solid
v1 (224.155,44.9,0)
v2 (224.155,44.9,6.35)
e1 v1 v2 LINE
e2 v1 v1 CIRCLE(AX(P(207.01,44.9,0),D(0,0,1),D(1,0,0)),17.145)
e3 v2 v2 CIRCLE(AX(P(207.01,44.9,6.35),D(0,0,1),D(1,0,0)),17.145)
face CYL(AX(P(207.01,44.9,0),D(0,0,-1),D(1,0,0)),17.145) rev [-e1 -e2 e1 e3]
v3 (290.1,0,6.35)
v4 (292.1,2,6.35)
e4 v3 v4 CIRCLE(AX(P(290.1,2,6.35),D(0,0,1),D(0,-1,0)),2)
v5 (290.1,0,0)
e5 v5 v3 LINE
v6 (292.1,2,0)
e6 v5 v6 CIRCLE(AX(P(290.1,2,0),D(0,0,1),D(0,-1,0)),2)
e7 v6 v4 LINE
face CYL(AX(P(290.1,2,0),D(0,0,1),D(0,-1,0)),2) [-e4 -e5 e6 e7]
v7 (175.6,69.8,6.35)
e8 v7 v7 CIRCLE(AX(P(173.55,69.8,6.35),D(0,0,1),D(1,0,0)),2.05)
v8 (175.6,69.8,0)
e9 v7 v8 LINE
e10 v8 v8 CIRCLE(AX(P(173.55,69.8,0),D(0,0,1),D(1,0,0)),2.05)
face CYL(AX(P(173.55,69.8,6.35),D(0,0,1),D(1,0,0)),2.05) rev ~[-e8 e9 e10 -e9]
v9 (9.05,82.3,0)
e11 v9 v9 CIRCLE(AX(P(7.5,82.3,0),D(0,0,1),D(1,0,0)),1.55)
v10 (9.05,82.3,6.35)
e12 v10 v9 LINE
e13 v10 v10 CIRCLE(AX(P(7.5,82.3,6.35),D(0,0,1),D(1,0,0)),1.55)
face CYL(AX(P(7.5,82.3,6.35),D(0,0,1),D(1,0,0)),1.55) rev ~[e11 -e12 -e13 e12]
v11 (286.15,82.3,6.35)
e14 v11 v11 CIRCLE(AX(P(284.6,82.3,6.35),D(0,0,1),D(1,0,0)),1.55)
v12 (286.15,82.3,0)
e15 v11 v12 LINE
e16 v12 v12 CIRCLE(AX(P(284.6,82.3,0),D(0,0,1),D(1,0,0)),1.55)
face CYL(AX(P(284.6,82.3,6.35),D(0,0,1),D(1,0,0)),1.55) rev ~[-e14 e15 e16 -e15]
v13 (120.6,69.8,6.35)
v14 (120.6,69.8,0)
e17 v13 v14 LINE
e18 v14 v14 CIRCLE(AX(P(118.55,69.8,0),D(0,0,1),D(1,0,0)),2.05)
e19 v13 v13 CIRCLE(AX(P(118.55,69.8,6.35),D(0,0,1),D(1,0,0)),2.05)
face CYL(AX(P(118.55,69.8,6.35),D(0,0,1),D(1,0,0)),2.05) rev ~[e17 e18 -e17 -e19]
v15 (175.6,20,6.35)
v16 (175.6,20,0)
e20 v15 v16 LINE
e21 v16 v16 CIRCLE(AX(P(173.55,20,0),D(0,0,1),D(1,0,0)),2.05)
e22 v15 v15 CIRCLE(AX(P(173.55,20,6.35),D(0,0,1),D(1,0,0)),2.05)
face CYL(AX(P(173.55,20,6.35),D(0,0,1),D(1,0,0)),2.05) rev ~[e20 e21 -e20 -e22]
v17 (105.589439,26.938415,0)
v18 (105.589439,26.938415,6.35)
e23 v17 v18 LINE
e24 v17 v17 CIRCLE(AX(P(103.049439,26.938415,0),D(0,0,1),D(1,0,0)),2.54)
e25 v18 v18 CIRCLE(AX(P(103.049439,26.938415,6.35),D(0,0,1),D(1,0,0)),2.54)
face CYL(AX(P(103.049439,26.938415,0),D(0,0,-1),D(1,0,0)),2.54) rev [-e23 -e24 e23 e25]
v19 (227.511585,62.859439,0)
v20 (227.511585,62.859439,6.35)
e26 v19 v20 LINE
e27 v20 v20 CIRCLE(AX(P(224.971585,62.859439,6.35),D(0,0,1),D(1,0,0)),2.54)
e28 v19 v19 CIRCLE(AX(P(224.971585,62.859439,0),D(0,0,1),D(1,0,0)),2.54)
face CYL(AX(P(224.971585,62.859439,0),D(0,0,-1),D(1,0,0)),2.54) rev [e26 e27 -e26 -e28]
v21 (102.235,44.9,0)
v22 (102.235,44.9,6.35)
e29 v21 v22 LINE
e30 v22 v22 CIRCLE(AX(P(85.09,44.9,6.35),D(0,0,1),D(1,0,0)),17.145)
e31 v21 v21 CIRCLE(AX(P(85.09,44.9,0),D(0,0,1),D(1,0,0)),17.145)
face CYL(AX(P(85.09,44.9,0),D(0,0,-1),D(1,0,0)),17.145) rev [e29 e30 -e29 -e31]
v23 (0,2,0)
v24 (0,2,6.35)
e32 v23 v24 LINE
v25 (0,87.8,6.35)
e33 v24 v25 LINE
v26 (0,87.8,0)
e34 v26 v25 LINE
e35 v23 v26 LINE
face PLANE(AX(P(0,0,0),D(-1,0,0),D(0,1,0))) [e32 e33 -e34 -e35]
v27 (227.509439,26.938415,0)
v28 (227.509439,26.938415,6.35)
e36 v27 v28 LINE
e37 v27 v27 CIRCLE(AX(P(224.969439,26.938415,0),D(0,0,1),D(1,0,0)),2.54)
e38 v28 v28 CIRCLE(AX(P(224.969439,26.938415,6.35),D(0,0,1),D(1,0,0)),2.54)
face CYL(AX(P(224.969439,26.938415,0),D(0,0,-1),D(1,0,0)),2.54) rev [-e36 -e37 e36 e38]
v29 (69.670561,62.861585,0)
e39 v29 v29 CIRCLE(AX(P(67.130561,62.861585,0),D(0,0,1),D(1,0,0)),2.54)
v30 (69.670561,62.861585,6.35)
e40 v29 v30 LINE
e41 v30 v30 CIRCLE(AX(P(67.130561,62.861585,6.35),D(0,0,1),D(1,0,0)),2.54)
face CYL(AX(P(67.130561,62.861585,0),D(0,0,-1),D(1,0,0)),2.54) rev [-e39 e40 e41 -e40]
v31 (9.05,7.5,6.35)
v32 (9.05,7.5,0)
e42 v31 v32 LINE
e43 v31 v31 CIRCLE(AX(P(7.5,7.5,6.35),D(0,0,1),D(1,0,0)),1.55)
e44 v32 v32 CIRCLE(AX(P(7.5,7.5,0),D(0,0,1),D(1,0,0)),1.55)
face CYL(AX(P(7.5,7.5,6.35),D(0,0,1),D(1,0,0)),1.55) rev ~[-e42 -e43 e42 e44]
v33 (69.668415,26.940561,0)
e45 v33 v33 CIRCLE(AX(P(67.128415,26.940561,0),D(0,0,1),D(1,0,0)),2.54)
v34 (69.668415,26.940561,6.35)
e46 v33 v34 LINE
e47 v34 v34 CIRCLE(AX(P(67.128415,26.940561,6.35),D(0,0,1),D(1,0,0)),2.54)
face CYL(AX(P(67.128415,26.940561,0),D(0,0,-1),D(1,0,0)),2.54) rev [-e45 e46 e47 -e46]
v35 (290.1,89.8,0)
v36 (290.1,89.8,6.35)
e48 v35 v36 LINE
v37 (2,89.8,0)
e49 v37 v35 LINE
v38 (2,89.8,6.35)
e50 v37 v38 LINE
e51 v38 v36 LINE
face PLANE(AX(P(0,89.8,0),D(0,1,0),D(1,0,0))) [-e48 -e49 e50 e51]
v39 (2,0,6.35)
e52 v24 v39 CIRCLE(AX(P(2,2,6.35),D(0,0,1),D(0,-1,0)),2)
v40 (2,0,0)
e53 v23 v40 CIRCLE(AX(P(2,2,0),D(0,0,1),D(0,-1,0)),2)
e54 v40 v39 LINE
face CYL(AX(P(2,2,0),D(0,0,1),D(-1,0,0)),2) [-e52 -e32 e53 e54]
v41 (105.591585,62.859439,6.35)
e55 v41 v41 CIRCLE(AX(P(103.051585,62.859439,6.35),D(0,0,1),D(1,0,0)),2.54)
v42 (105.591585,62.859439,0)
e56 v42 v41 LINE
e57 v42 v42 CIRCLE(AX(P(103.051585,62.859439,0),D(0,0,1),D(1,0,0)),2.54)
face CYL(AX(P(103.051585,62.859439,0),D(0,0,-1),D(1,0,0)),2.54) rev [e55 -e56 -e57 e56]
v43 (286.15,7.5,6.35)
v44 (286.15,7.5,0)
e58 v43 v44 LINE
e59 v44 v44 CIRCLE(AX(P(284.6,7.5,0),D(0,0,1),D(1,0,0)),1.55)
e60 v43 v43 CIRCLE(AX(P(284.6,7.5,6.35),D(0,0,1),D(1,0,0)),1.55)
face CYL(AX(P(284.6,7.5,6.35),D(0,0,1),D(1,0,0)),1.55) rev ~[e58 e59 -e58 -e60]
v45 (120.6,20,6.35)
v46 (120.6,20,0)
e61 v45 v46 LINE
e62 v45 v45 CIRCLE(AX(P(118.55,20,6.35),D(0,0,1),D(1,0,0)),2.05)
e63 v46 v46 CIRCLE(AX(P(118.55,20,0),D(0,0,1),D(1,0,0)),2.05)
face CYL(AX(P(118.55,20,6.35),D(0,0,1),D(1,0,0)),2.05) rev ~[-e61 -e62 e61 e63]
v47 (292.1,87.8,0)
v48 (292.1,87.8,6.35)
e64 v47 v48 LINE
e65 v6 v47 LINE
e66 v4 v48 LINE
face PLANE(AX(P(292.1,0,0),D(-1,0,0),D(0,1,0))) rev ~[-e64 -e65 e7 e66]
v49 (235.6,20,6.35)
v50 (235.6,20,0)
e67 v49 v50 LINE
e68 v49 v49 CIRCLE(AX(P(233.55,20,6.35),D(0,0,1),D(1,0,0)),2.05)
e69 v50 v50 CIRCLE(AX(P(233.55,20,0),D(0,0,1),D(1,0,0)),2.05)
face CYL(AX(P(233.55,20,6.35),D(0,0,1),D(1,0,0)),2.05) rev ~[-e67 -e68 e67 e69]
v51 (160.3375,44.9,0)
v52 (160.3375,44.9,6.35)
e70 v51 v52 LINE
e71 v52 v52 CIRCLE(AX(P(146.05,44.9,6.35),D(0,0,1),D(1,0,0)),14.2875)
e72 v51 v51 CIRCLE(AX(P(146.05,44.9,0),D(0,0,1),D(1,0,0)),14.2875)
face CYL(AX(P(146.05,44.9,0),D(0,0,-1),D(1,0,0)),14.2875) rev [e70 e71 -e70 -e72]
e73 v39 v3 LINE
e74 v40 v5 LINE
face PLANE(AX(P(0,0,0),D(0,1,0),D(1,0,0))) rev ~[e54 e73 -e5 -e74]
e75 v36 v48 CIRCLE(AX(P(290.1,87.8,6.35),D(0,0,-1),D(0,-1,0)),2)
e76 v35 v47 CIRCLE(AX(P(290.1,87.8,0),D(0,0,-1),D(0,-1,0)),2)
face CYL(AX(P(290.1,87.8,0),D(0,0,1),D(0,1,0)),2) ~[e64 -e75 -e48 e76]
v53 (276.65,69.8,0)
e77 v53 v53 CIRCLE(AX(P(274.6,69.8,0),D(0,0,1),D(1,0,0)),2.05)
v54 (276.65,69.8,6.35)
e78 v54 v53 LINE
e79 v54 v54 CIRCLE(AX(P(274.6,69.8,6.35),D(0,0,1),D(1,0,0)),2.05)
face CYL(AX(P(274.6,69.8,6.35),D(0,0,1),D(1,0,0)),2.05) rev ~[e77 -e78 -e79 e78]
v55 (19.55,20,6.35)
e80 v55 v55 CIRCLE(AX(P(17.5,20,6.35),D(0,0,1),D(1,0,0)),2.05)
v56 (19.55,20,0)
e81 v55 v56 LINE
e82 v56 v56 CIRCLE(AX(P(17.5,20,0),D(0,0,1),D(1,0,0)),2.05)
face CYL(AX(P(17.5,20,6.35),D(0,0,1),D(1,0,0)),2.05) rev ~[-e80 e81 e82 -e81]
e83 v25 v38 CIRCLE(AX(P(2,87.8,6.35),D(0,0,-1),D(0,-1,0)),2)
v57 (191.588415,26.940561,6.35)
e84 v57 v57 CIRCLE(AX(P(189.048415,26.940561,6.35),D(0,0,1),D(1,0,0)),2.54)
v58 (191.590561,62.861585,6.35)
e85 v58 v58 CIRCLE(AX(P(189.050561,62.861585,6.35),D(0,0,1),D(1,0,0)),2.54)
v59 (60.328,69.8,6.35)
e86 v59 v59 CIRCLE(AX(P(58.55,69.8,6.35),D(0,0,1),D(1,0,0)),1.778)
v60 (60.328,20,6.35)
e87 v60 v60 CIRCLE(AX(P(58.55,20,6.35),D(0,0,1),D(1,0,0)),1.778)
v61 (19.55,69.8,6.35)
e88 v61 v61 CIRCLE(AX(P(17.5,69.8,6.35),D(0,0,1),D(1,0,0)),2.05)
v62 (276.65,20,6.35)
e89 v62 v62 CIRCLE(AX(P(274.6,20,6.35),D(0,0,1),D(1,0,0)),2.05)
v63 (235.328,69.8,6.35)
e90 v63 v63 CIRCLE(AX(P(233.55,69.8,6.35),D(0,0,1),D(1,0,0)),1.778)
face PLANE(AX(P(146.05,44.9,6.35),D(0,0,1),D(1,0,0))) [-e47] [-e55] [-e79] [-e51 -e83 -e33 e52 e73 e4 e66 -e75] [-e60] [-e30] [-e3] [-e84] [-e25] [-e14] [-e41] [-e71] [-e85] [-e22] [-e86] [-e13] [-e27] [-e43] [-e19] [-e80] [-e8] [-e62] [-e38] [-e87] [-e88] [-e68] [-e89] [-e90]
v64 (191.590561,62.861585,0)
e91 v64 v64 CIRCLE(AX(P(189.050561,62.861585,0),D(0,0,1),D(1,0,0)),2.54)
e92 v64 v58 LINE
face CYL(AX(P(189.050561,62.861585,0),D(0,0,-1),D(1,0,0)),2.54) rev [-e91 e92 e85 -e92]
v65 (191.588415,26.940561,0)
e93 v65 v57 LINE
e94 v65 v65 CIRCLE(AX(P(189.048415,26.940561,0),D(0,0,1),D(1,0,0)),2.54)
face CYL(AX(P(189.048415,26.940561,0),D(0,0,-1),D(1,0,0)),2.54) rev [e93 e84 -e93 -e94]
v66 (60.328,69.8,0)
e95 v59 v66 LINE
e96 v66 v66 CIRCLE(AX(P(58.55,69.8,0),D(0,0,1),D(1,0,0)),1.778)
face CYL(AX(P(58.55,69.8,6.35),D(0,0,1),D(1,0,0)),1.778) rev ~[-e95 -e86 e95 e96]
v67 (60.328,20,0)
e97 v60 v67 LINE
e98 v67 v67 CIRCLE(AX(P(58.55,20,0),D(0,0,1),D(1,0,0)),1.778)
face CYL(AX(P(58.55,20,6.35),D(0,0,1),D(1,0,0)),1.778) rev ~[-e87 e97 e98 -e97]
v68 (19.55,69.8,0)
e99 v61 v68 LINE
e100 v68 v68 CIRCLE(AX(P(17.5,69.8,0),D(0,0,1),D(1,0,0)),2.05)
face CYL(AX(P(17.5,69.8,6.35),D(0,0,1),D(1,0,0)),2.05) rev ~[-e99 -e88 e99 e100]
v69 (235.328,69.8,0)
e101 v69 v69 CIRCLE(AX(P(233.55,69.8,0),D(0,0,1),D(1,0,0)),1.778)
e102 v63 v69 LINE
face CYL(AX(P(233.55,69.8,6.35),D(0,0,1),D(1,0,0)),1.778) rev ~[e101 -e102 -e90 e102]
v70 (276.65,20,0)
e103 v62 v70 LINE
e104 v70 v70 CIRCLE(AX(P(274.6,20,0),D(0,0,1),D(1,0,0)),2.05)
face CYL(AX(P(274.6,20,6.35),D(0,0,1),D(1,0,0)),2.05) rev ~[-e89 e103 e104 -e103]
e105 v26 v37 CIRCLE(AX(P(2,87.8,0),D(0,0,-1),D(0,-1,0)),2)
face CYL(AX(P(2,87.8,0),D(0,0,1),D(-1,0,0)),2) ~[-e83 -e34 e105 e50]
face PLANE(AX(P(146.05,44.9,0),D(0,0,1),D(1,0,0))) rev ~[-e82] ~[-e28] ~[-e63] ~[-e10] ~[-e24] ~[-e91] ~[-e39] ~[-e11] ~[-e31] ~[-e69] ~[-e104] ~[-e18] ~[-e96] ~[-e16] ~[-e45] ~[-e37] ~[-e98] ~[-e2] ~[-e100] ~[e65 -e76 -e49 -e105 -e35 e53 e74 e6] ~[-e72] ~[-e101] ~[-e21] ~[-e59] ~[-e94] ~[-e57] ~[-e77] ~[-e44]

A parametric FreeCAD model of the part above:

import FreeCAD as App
import Part
import Sketcher

V = App.Vector
Q = App.Units.Quantity


def edges_at(feature, points):
    """Names of the edges that pass closest to the given points."""
    edges = feature.Shape.Edges
    near = lambda p: min(range(len(edges)), key=lambda i: edges[i].distToShape(Part.Vertex(*p))[0])
    return sorted({f"Edge{near(p) + 1}" for p in points})


def add_polygon(sketch, points):
    """Adds a closed chain of lines whose ends are joined by coincident constraints."""
    first, n = sketch.GeometryCount, len(points)
    for a, b in zip(points, points[1:] + points[:1]):
        sketch.addGeometry(Part.LineSegment(App.Vector(*a, 0), App.Vector(*b, 0)), False)
    for i in range(n):
        sketch.addConstraint(Sketcher.Constraint("Coincident", first + i, 2, first + (i + 1) % n, 1))

doc = App.newDocument("Part")
body = doc.addObject("PartDesign::Body", "Body")

# Sketch on XY plane
sketch1 = body.newObject("Sketcher::SketchObject", "Sketch")
sketch1.AttachmentSupport = (doc.getObject("XY_Plane"), [""])
sketch1.MapMode = "FlatFace"
add_polygon(sketch1, [(0, 89.8), (0, 0), (292.1, 0), (292.1, 89.8)])  # lines 0-3
sketch1.addGeometry(Part.Circle(V(67.128415, 26.940561, 0), V(0, 0, 1), 2.54), False)  # 4
sketch1.addGeometry(Part.Circle(V(103.049439, 26.938415, 0), V(0, 0, 1), 2.54), False)  # 5
sketch1.addGeometry(Part.Circle(V(85.09, 44.9, 0), V(0, 0, 1), 17.145), False)  # 6
sketch1.addGeometry(Part.Circle(V(189.048415, 26.940561, 0), V(0, 0, 1), 2.54), False)  # 7
sketch1.addGeometry(Part.Circle(V(224.969439, 26.938415, 0), V(0, 0, 1), 2.54), False)  # 8
sketch1.addGeometry(Part.Circle(V(146.05, 44.9, 0), V(0, 0, 1), 14.2875), False)  # 9
sketch1.addGeometry(Part.Circle(V(207.01, 44.9, 0), V(0, 0, 1), 17.145), False)  # 10
sketch1.addGeometry(Part.Circle(V(67.130561, 62.861585, 0), V(0, 0, 1), 2.54), False)  # 11
sketch1.addGeometry(Part.Circle(V(103.051585, 62.859439, 0), V(0, 0, 1), 2.54), False)  # 12
sketch1.addGeometry(Part.Circle(V(189.050561, 62.861585, 0), V(0, 0, 1), 2.54), False)  # 13
sketch1.addGeometry(Part.Circle(V(224.971585, 62.859439, 0), V(0, 0, 1), 2.54), False)  # 14
sketch1.addConstraint([
    Sketcher.Constraint("Vertical", 0),
    Sketcher.Constraint("Horizontal", 1),
    Sketcher.Constraint("Vertical", 2),
    Sketcher.Constraint("Horizontal", 3),
    Sketcher.Constraint("Coincident", 0, 2, -1, 1),
    Sketcher.Constraint("Equal", 4, 5),
    Sketcher.Constraint("Equal", 5, 7),
    Sketcher.Constraint("Equal", 7, 8),
    Sketcher.Constraint("Equal", 6, 10),
    Sketcher.Constraint("Equal", 8, 11),
    Sketcher.Constraint("Equal", 11, 12),
    Sketcher.Constraint("Equal", 12, 13),
    Sketcher.Constraint("Equal", 13, 14),
    Sketcher.Constraint("Horizontal", 4, 3, 7, 3),
    Sketcher.Constraint("Horizontal", 5, 3, 8, 3),
    Sketcher.Constraint("Horizontal", 6, 3, 9, 3),
    Sketcher.Constraint("Horizontal", 9, 3, 10, 3),
    Sketcher.Constraint("Horizontal", 11, 3, 13, 3),
    Sketcher.Constraint("Horizontal", 12, 3, 14, 3),
    Sketcher.Constraint("Diameter", 4, Q("0.2 in")),
    Sketcher.Constraint("Diameter", 6, Q("1.35 in")),
    Sketcher.Constraint("Diameter", 9, Q("1.125 in")),
    Sketcher.Constraint("DistanceX", 1, 1, 1, 2, Q("11.5 in")),
    Sketcher.Constraint("DistanceX", 4, 3, 7, 3, Q("4.8 in")),
    Sketcher.Constraint("DistanceX", 5, 3, 8, 3, Q("4.8 in")),
    Sketcher.Constraint("DistanceX", 6, 3, 9, 3, Q("2.4 in")),
    Sketcher.Constraint("DistanceX", 9, 3, 10, 3, Q("2.4 in")),
    Sketcher.Constraint("DistanceX", -1, 1, 6, 3, Q("3.35 in")),
    Sketcher.Constraint("DistanceY", 0, 2, 0, 1, Q("89.8 mm")),
    Sketcher.Constraint("DistanceY", -1, 1, 6, 3, Q("44.9 mm")),
    Sketcher.Constraint("DistanceY", -1, 1, 4, 3, Q("26.940561 mm")),
    Sketcher.Constraint("DistanceX", -1, 1, 5, 3, Q("103.049439 mm")),
    Sketcher.Constraint("DistanceX", -1, 1, 11, 3, Q("67.130561 mm")),
    Sketcher.Constraint("DistanceY", -1, 1, 12, 3, Q("62.859439 mm")),
    Sketcher.Constraint("DistanceX", -1, 1, 13, 3, Q("189.050561 mm")),
    Sketcher.Constraint("DistanceY", 5, 3, 11, 3, Q("35.923171 mm")),
    Sketcher.Constraint("DistanceX", 4, 3, 12, 3, Q("35.923171 mm")),
    Sketcher.Constraint("DistanceX", 7, 3, 14, 3, Q("35.923171 mm")),
    Sketcher.Constraint("DistanceX", -1, 1, 4, 3, Q("67.128415 mm")),
    Sketcher.Constraint("DistanceY", -1, 1, 5, 3, Q("26.938415 mm")),
])
pad1 = body.newObject("PartDesign::Pad", "Pad")
pad1.Profile = sketch1
pad1.Length = Q("0.25 in")

# Sketch on XY plane
sketch2 = body.newObject("Sketcher::SketchObject", "Sketch001")
sketch2.AttachmentSupport = (doc.getObject("XY_Plane"), [""])
sketch2.MapMode = "FlatFace"
sketch2.AttachmentOffset = App.Placement(V(0, 0, 0.25 * 25.4), App.Rotation())
sketch2.addGeometry([
    Part.Circle(V(118.55, 20, 0), V(0, 0, 1), 2.05),
    Part.Circle(V(118.55, 69.8, 0), V(0, 0, 1), 2.05),
    Part.Circle(V(173.55, 20, 0), V(0, 0, 1), 2.05),
    Part.Circle(V(173.55, 69.8, 0), V(0, 0, 1), 2.05),
], False)
sketch2.addConstraint([
    Sketcher.Constraint("Equal", 0, 1),
    Sketcher.Constraint("Equal", 1, 2),
    Sketcher.Constraint("Equal", 2, 3),
    Sketcher.Constraint("Horizontal", 0, 3, 2, 3),
    Sketcher.Constraint("Horizontal", 1, 3, 3, 3),
    Sketcher.Constraint("Vertical", 0, 3, 1, 3),
    Sketcher.Constraint("Vertical", 2, 3, 3, 3),
    Sketcher.Constraint("Diameter", 0, Q("4.1 mm")),
    Sketcher.Constraint("DistanceX", -1, 1, 0, 3, Q("118.55 mm")),
    Sketcher.Constraint("DistanceY", -1, 1, 0, 3, Q("20 mm")),
    Sketcher.Constraint("DistanceY", -1, 1, 1, 3, Q("69.8 mm")),
    Sketcher.Constraint("DistanceX", -1, 1, 2, 3, Q("173.55 mm")),
])
pocket1 = body.newObject("PartDesign::Pocket", "Pocket")
pocket1.Profile = sketch2
pocket1.Length = 10

# Sketch on XY plane
sketch3 = body.newObject("Sketcher::SketchObject", "Sketch002")
sketch3.AttachmentSupport = (doc.getObject("XY_Plane"), [""])
sketch3.MapMode = "FlatFace"
sketch3.AttachmentOffset = App.Placement(V(0, 0, 0.25 * 25.4), App.Rotation())
sketch3.addGeometry([
    Part.Circle(V(284.6, 7.5, 0), V(0, 0, 1), 1.55),  # 0
    Part.Circle(V(7.5, 7.5, 0), V(0, 0, 1), 1.55),  # 1
    Part.Circle(V(7.5, 82.3, 0), V(0, 0, 1), 1.55),  # 2
    Part.Circle(V(284.6, 82.3, 0), V(0, 0, 1), 1.55),  # 3
    Part.Circle(V(274.6, 20, 0), V(0, 0, 1), 2.05),  # 4
    Part.Circle(V(17.5, 20, 0), V(0, 0, 1), 2.05),  # 5
    Part.Circle(V(17.5, 69.8, 0), V(0, 0, 1), 2.05),  # 6
    Part.Circle(V(274.6, 69.8, 0), V(0, 0, 1), 2.05),  # 7
], False)
sketch3.addConstraint([
    Sketcher.Constraint("Equal", 0, 1),
    Sketcher.Constraint("Equal", 1, 2),
    Sketcher.Constraint("Equal", 2, 3),
    Sketcher.Constraint("Equal", 4, 5),
    Sketcher.Constraint("Equal", 5, 6),
    Sketcher.Constraint("Equal", 6, 7),
    Sketcher.Constraint("Horizontal", 0, 3, 1, 3),
    Sketcher.Constraint("Horizontal", 2, 3, 3, 3),
    Sketcher.Constraint("Horizontal", 4, 3, 5, 3),
    Sketcher.Constraint("Horizontal", 6, 3, 7, 3),
    Sketcher.Constraint("Vertical", 1, 3, 2, 3),
    Sketcher.Constraint("Vertical", 0, 3, 3, 3),
    Sketcher.Constraint("Vertical", 5, 3, 6, 3),
    Sketcher.Constraint("Vertical", 4, 3, 7, 3),
    Sketcher.Constraint("Diameter", 0, Q("3.1 mm")),
    Sketcher.Constraint("Diameter", 4, Q("4.1 mm")),
    Sketcher.Constraint("DistanceX", -1, 1, 0, 3, Q("284.6 mm")),
    Sketcher.Constraint("DistanceY", -1, 1, 0, 3, Q("7.5 mm")),
    Sketcher.Constraint("DistanceX", -1, 1, 1, 3, Q("7.5 mm")),
    Sketcher.Constraint("DistanceY", -1, 1, 2, 3, Q("82.3 mm")),
    Sketcher.Constraint("DistanceX", -1, 1, 4, 3, Q("274.6 mm")),
    Sketcher.Constraint("DistanceY", -1, 1, 4, 3, Q("20 mm")),
    Sketcher.Constraint("DistanceX", -1, 1, 5, 3, Q("17.5 mm")),
    Sketcher.Constraint("DistanceY", -1, 1, 6, 3, Q("69.8 mm")),
])
pocket2 = body.newObject("PartDesign::Pocket", "Pocket001")
pocket2.Profile = sketch3
pocket2.Length = 10
doc.recompute()

fillet = body.newObject("PartDesign::Fillet", "Fillet")
fillet.Base = (pocket2, edges_at(pocket2, [
    (0, 89.8, 3.175),
    (292.1, 89.8, 3.175),
    (292.1, 0, 3.175),
    (0, 0, 3.175),
]))
fillet.Radius = 2

# Sketch on XY plane
sketch4 = body.newObject("Sketcher::SketchObject", "Sketch003")
sketch4.AttachmentSupport = (doc.getObject("XY_Plane"), [""])
sketch4.MapMode = "FlatFace"
sketch4.AttachmentOffset = App.Placement(V(0, 0, 0.25 * 25.4), App.Rotation())
sketch4.addGeometry([
    Part.Circle(V(233.55, 20, 0), V(0, 0, 1), 2.05),
    Part.Circle(V(233.55, 69.8, 0), V(0, 0, 1), 1.778),
    Part.Circle(V(58.55, 69.8, 0), V(0, 0, 1), 1.778),
    Part.Circle(V(58.55, 20, 0), V(0, 0, 1), 1.778),
], False)
sketch4.addConstraint([
    Sketcher.Constraint("Equal", 1, 2),
    Sketcher.Constraint("Equal", 2, 3),
    Sketcher.Constraint("Horizontal", 1, 3, 2, 3),
    Sketcher.Constraint("Horizontal", 0, 3, 3, 3),
    Sketcher.Constraint("Vertical", 0, 3, 1, 3),
    Sketcher.Constraint("Vertical", 2, 3, 3, 3),
    Sketcher.Constraint("Diameter", 1, Q("0.14 in")),
    Sketcher.Constraint("Diameter", 0, Q("4.1 mm")),
    Sketcher.Constraint("DistanceX", -1, 1, 0, 3, Q("233.55 mm")),
    Sketcher.Constraint("DistanceY", -1, 1, 0, 3, Q("20 mm")),
    Sketcher.Constraint("DistanceY", -1, 1, 1, 3, Q("69.8 mm")),
    Sketcher.Constraint("DistanceX", -1, 1, 2, 3, Q("58.55 mm")),
])
pocket3 = body.newObject("PartDesign::Pocket", "Pocket002")
pocket3.Profile = sketch4
pocket3.Type = "ThroughAll"

doc.recompute()
